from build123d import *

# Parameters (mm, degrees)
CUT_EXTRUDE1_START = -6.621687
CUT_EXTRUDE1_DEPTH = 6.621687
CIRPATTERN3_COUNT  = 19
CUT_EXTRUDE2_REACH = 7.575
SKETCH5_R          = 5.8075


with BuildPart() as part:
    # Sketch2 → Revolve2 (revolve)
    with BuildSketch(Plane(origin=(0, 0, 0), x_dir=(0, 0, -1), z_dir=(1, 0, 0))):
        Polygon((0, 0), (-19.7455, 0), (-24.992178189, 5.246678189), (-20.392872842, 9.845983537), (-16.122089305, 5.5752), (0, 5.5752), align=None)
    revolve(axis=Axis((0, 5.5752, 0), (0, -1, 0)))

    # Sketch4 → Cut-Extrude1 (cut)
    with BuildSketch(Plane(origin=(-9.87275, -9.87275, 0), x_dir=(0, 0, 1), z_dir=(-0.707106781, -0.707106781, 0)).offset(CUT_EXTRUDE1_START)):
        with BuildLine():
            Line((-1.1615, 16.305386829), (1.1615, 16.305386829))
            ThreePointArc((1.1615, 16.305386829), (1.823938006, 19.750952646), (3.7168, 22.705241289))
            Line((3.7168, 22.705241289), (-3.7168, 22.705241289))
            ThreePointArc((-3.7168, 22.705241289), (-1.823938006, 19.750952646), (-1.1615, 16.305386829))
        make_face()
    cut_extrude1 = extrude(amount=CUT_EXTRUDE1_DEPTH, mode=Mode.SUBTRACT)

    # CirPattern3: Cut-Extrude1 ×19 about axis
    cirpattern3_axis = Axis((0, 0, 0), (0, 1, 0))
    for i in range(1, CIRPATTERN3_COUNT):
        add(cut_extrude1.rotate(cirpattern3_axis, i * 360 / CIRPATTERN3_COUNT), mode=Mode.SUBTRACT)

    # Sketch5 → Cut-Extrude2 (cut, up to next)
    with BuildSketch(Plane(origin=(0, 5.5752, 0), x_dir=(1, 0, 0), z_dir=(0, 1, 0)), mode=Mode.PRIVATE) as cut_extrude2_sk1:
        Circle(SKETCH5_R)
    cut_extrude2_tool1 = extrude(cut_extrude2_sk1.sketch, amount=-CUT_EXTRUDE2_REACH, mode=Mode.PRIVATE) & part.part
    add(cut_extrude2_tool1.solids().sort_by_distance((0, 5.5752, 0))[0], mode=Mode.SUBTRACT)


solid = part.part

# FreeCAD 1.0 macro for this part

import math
import FreeCAD as App
import Part
import Sketcher
Q = App.Units.Quantity


def add_polygon(sketch, points):
    """Adds a closed chain of lines whose ends are joined by coincident constraints."""
    first, n = sketch.GeometryCount, len(points)
    for a, b in zip(points, points[1:] + points[:1]):
        sketch.addGeometry(Part.LineSegment(App.Vector(*a, 0), App.Vector(*b, 0)), False)
    for i in range(n):
        sketch.addConstraint(Sketcher.Constraint("Coincident", first + i, 2, first + (i + 1) % n, 1))

doc = App.newDocument("Part")
body = doc.addObject("PartDesign::Body", "Body")

# Sketch on YZ plane
sketch1 = body.newObject("Sketcher::SketchObject", "Sketch")
sketch1.AttachmentSupport = (doc.getObject("YZ_Plane"), [""])
sketch1.MapMode = "FlatFace"
add_polygon(sketch1, [(0, 20), (0, 0), (6, 0), (6, 16), (10, 20), (5, 25)])  # lines 0-5
sketch1.addConstraint(Sketcher.Constraint("Vertical", 0))
sketch1.addConstraint(Sketcher.Constraint("Horizontal", 1))
sketch1.addConstraint(Sketcher.Constraint("Vertical", 2))
sketch1.addConstraint(Sketcher.Constraint("Coincident", 0, 2, -1, 1))
sketch1.addConstraint(Sketcher.Constraint("Perpendicular", 3, 4))
sketch1.addConstraint(Sketcher.Constraint("Perpendicular", 4, 5))
sketch1.addConstraint(Sketcher.Constraint("Angle", 3, Q("45 deg")))
sketch1.addConstraint(Sketcher.Constraint("DistanceX", 1, 1, 1, 2, Q("5.5752 mm")))
sketch1.addConstraint(Sketcher.Constraint("DistanceY", 0, 2, 0, 1, Q("19.7455 mm")))
sketch1.addConstraint(Sketcher.Constraint("Distance", 3, Q("6.0398 mm")))
sketch1.addConstraint(Sketcher.Constraint("Distance", 4, Q("6.5044 mm")))
revolution = body.newObject("PartDesign::Revolution", "Revolution")
revolution.Profile = sketch1
revolution.ReferenceAxis = (sketch1, ["H_Axis"])
revolution.Angle = 360

# Sketch on an angled plane
sketch2 = body.newObject("Sketcher::SketchObject", "Sketch001")
sketch2.Placement = App.Placement(App.Vector(-5.19051, -5.19051, 0), App.Rotation(App.Vector(0, 0, 1), App.Vector(-0.707106781, 0.707106781, 0), App.Vector(-0.707106781, -0.707106781, 0), "ZXY"))
sketch2.addGeometry(Part.LineSegment(App.Vector(-1.2, 16.3, 0), App.Vector(1.2, 16.3, 0)), False)
sketch2.addGeometry(Part.ArcOfCircle(Part.Circle(App.Vector(10.5, 16.3, 0), App.Vector(0, 0, 1), 9.3), math.radians(136), math.radians(180)), False)
sketch2.addGeometry(Part.LineSegment(App.Vector(3.7, 22.7, 0), App.Vector(-3.7, 22.7, 0)), False)
sketch2.addGeometry(Part.ArcOfCircle(Part.Circle(App.Vector(-10.5, 16.3, 0), App.Vector(0, 0, 1), 9.3), math.radians(0), math.radians(44)), False)
sketch2.addConstraint(Sketcher.Constraint("Coincident", 0, 2, 1, 2))
sketch2.addConstraint(Sketcher.Constraint("Coincident", 1, 1, 2, 1))
sketch2.addConstraint(Sketcher.Constraint("Coincident", 2, 2, 3, 2))
sketch2.addConstraint(Sketcher.Constraint("Coincident", 3, 1, 0, 1))
sketch2.addConstraint(Sketcher.Constraint("Horizontal", 0))
sketch2.addConstraint(Sketcher.Constraint("Horizontal", 2))
sketch2.addConstraint(Sketcher.Constraint("Equal", 1, 3))
sketch2.addConstraint(Sketcher.Constraint("Symmetric", 1, 3, 3, 3, -2))
sketch2.addConstraint(Sketcher.Constraint("Horizontal", 3, 3, 0, 2))
sketch2.addConstraint(Sketcher.Constraint("Radius", 1, Q("9.292 mm")))
sketch2.addConstraint(Sketcher.Constraint("DistanceX", 0, 1, 0, 2, Q("2.323 mm")))
sketch2.addConstraint(Sketcher.Constraint("DistanceX", 2, 2, 2, 1, Q("7.4336 mm")))
sketch2.addConstraint(Sketcher.Constraint("DistanceY", -1, 1, 1, 1, Q("22.705241 mm")))
pocket1 = body.newObject("PartDesign::Pocket", "Pocket")
pocket1.Profile = sketch2
pocket1.Length = 6.621687
pocket1.Reversed = True
doc.recompute()

polarpattern = body.newObject("PartDesign::PolarPattern", "PolarPattern")
polarpattern.Originals = [pocket1]
polarpattern.Axis = (doc.getObject("Y_Axis"), [""])
polarpattern.Angle = 360
polarpattern.Occurrences = 19
body.Tip = polarpattern

# Sketch on XZ plane
sketch3 = body.newObject("Sketcher::SketchObject", "Sketch002")
sketch3.AttachmentSupport = (doc.getObject("XZ_Plane"), [""])
sketch3.MapMode = "FlatFace"
sketch3.AttachmentOffset = App.Placement(App.Vector(0, 0, -5.5752), App.Rotation())
sketch3.addGeometry(Part.Circle(App.Vector(0, 0, 0), App.Vector(0, 0, 1), 6), False)
sketch3.addConstraint(Sketcher.Constraint("Coincident", 0, 3, -1, 1))
sketch3.addConstraint(Sketcher.Constraint("Diameter", 0, Q("11.615 mm")))
pocket2 = body.newObject("PartDesign::Pocket", "Pocket001")
pocket2.Profile = sketch3
pocket2.Type = "UpToFirst"
pocket2.Reversed = True

doc.recompute()
